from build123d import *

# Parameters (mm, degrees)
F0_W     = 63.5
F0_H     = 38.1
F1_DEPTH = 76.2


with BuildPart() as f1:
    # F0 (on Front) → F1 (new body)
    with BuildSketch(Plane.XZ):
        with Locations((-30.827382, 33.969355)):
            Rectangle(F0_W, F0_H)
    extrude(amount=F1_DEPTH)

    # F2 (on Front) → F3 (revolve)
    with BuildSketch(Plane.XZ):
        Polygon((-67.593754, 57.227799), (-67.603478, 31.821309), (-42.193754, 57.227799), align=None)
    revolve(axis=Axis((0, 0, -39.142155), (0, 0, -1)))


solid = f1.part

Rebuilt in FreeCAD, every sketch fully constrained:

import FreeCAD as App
import Part
import Sketcher
Q = App.Units.Quantity

doc = App.newDocument("Part")
params = doc.addObject("Spreadsheet::Sheet", "Params")
for row, (alias, value) in enumerate([
    ("sketch1_width", "2.5 in"),
    ("sketch1_height", "1.5 in"),
    ("pad1_length", "3 in"),
    ("sketch2_width", "1 in"),
    ("revolution_angle", "360 deg"),
], start=1):
    params.set(f"A{row}", alias)
    params.set(f"B{row}", "=" + value)
    params.setAlias(f"B{row}", alias)

body = doc.addObject("PartDesign::Body", "Body")

# Sketch on XZ plane
sketch1 = body.newObject("Sketcher::SketchObject", "Sketch")
sketch1.AttachmentSupport = (doc.getObject("XZ_Plane"), [""])
sketch1.MapMode = "FlatFace"
sketch1.addGeometry([
    Part.LineSegment(App.Vector(-62.577382, 53.019355, 0), App.Vector(-62.577382, 14.919355, 0)),
    Part.LineSegment(App.Vector(-62.577382, 14.919355, 0), App.Vector(0.922618, 14.919355, 0)),
    Part.LineSegment(App.Vector(0.922618, 14.919355, 0), App.Vector(0.922618, 53.019355, 0)),
    Part.LineSegment(App.Vector(0.922618, 53.019355, 0), App.Vector(-62.577382, 53.019355, 0)),
], False)
sketch1.addConstraint([
    Sketcher.Constraint("Coincident", 0, 2, 1, 1),
    Sketcher.Constraint("Coincident", 1, 2, 2, 1),
    Sketcher.Constraint("Coincident", 2, 2, 3, 1),
    Sketcher.Constraint("Coincident", 3, 2, 0, 1),
    Sketcher.Constraint("Vertical", 0),
    Sketcher.Constraint("Horizontal", 1),
    Sketcher.Constraint("Vertical", 2),
    Sketcher.Constraint("Horizontal", 3),
    Sketcher.Constraint("DistanceX", 1, 1, 1, 2, Q("2.5 in")),
    Sketcher.Constraint("DistanceY", 0, 2, 0, 1, Q("1.5 in")),
    Sketcher.Constraint("DistanceX", -1, 1, 1, 2, Q("0.922618 mm")),
    Sketcher.Constraint("DistanceY", -1, 1, 0, 2, Q("14.919355 mm")),
])
sketch1.setExpression("Constraints[8]", "Params.sketch1_width")
sketch1.setExpression("Constraints[9]", "Params.sketch1_height")
pad1 = body.newObject("PartDesign::Pad", "Pad")
pad1.Profile = sketch1
pad1.setExpression("Length", "Params.pad1_length")

# Sketch on XZ plane
sketch2 = body.newObject("Sketcher::SketchObject", "Sketch001")
sketch2.AttachmentSupport = (doc.getObject("XZ_Plane"), [""])
sketch2.MapMode = "FlatFace"
sketch2.addGeometry([
    Part.LineSegment(App.Vector(-67.593754, 57.227799, 0), App.Vector(-67.603478, 31.821309, 0)),
    Part.LineSegment(App.Vector(-67.603478, 31.821309, 0), App.Vector(-42.193754, 57.227799, 0)),
    Part.LineSegment(App.Vector(-42.193754, 57.227799, 0), App.Vector(-67.593754, 57.227799, 0)),
], False)
sketch2.addConstraint([
    Sketcher.Constraint("Coincident", 0, 2, 1, 1),
    Sketcher.Constraint("Coincident", 1, 2, 2, 1),
    Sketcher.Constraint("Coincident", 2, 2, 0, 1),
    Sketcher.Constraint("Horizontal", 2),
    Sketcher.Constraint("DistanceX", 2, 2, 2, 1, Q("1 in")),
    Sketcher.Constraint("DistanceY", -1, 1, 1, 2, Q("57.227799 mm")),
    Sketcher.Constraint("Distance", 0, Q("25.406492 mm")),
    Sketcher.Constraint("Distance", 1, Q("35.93249 mm")),
    Sketcher.Constraint("DistanceX", 0, 2, -1, 1, Q("67.603478 mm")),
])
sketch2.setExpression("Constraints[4]", "Params.sketch2_width")
revolution = body.newObject("PartDesign::Revolution", "Revolution")
revolution.Profile = sketch2
revolution.ReferenceAxis = (sketch2, ["V_Axis"])
revolution.setExpression("Angle", "Params.revolution_angle")

doc.recompute()
